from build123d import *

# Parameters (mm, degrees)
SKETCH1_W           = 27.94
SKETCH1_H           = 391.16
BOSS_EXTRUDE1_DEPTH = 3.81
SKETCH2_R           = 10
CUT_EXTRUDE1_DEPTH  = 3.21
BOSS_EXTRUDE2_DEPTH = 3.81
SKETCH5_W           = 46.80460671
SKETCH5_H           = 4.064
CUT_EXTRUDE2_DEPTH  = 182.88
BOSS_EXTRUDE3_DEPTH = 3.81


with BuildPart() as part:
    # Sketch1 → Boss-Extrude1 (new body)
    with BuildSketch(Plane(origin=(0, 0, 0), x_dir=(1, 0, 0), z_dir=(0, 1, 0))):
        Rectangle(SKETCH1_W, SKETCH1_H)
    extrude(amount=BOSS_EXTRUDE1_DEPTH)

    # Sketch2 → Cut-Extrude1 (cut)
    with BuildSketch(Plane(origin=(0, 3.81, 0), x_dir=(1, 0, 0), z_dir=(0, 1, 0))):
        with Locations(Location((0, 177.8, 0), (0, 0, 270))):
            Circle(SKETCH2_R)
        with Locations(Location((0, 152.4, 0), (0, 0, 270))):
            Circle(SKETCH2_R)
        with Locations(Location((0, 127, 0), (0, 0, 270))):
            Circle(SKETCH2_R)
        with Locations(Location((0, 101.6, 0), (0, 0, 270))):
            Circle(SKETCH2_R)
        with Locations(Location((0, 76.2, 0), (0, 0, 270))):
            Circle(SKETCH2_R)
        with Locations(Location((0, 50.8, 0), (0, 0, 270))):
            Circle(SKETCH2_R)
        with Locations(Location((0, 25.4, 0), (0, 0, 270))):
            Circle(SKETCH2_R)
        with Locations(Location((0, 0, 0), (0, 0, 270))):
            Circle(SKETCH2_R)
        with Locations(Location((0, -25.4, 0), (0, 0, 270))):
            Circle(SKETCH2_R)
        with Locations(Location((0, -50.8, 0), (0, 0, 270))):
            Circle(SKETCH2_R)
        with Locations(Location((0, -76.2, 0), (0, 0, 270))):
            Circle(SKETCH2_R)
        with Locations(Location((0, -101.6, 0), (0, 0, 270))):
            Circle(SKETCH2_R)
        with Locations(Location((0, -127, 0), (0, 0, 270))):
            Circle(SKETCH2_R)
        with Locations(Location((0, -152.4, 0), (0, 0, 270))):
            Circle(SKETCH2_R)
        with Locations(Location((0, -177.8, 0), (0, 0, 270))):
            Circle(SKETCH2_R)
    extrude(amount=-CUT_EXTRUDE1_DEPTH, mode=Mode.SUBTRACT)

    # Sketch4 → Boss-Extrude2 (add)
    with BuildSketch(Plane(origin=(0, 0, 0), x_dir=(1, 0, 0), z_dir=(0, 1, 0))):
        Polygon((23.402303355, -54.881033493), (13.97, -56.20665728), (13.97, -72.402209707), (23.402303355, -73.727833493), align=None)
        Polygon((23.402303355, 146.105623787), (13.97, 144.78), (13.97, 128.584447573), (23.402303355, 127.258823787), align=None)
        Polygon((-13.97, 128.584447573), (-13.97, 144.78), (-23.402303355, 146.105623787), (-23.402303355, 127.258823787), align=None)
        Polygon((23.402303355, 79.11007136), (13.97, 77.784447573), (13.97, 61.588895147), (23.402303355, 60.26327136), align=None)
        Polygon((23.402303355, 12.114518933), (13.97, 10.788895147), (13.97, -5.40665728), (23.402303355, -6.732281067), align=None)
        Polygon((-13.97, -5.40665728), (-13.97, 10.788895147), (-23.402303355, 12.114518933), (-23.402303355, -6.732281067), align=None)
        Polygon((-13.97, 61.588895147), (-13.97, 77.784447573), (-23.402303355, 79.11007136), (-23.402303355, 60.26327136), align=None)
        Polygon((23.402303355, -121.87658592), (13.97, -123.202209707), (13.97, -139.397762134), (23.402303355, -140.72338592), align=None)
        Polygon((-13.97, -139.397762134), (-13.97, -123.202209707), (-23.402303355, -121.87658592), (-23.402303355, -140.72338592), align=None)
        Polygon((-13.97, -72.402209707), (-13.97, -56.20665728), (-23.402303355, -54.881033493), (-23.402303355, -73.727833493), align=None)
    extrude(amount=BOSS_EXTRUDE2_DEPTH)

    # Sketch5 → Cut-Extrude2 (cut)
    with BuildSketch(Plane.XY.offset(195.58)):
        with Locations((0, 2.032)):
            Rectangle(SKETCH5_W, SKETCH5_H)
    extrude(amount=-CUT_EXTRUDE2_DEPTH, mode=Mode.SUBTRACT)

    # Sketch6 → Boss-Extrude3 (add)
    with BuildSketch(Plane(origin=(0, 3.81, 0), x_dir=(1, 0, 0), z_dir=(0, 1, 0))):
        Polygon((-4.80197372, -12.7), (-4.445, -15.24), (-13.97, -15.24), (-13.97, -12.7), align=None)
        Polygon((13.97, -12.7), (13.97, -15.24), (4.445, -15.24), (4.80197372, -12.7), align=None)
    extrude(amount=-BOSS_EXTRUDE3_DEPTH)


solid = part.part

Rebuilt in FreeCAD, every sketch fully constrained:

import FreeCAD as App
import Part
import Sketcher

V = App.Vector
Q = App.Units.Quantity


def add_polygon(sketch, points):
    """Adds a closed chain of lines whose ends are joined by coincident constraints."""
    first, n = sketch.GeometryCount, len(points)
    for a, b in zip(points, points[1:] + points[:1]):
        sketch.addGeometry(Part.LineSegment(App.Vector(*a, 0), App.Vector(*b, 0)), False)
    for i in range(n):
        sketch.addConstraint(Sketcher.Constraint("Coincident", first + i, 2, first + (i + 1) % n, 1))

doc = App.newDocument("Part")
body = doc.addObject("PartDesign::Body", "Body")

# Sketch on XZ plane
sketch1 = body.newObject("Sketcher::SketchObject", "Sketch")
sketch1.AttachmentSupport = (doc.getObject("XZ_Plane"), [""])
sketch1.MapMode = "FlatFace"
add_polygon(sketch1, [(-14, -196), (-14, 196), (14, 196), (14, -196)])  # lines 0-3
sketch1.addConstraint([
    Sketcher.Constraint("Vertical", 0),
    Sketcher.Constraint("Horizontal", 1),
    Sketcher.Constraint("Vertical", 2),
    Sketcher.Constraint("Horizontal", 3),
    Sketcher.Constraint("Symmetric", 0, 2, 2, 2, -1, 1),
    Sketcher.Constraint("DistanceX", 1, 1, 1, 2, Q("1.1 in")),
    Sketcher.Constraint("DistanceY", 0, 1, 0, 2, Q("15.4 in")),
])
pad1 = body.newObject("PartDesign::Pad", "Pad")
pad1.Profile = sketch1
pad1.Length = Q("0.15 in")
pad1.Reversed = True

# Sketch on XZ plane
sketch2 = body.newObject("Sketcher::SketchObject", "Sketch001")
sketch2.AttachmentSupport = (doc.getObject("XZ_Plane"), [""])
sketch2.MapMode = "FlatFace"
sketch2.AttachmentOffset = App.Placement(V(0, 0, -0.15 * 25.4), App.Rotation())
sketch2.addGeometry([
    Part.Circle(V(0, -178, 0), V(0, 0, 1), 10),  # 0
    Part.Circle(V(0, -152, 0), V(0, 0, 1), 10),  # 1
    Part.Circle(V(0, -127, 0), V(0, 0, 1), 10),  # 2
    Part.Circle(V(0, -102, 0), V(0, 0, 1), 10),  # 3
    Part.Circle(V(0, -76, 0), V(0, 0, 1), 10),  # 4
    Part.Circle(V(0, -51, 0), V(0, 0, 1), 10),  # 5
    Part.Circle(V(0, -25, 0), V(0, 0, 1), 10),  # 6
    Part.Circle(V(0, 0, 0), V(0, 0, 1), 10),  # 7
    Part.Circle(V(0, 25, 0), V(0, 0, 1), 10),  # 8
    Part.Circle(V(0, 51, 0), V(0, 0, 1), 10),  # 9
    Part.Circle(V(0, 76, 0), V(0, 0, 1), 10),  # 10
    Part.Circle(V(0, 102, 0), V(0, 0, 1), 10),  # 11
    Part.Circle(V(0, 127, 0), V(0, 0, 1), 10),  # 12
    Part.Circle(V(0, 152, 0), V(0, 0, 1), 10),  # 13
    Part.Circle(V(0, 178, 0), V(0, 0, 1), 10),  # 14
], False)
sketch2.addConstraint([
    Sketcher.Constraint("Coincident", 7, 3, -1, 1),
    Sketcher.Constraint("Equal", 0, 1),
    Sketcher.Constraint("Equal", 1, 2),
    Sketcher.Constraint("Equal", 2, 3),
    Sketcher.Constraint("Equal", 3, 4),
    Sketcher.Constraint("Equal", 4, 5),
    Sketcher.Constraint("Equal", 5, 6),
    Sketcher.Constraint("Equal", 6, 7),
    Sketcher.Constraint("Equal", 7, 8),
    Sketcher.Constraint("Equal", 8, 9),
    Sketcher.Constraint("Equal", 9, 10),
    Sketcher.Constraint("Equal", 10, 11),
    Sketcher.Constraint("Equal", 11, 12),
    Sketcher.Constraint("Equal", 12, 13),
    Sketcher.Constraint("Equal", 13, 14),
    Sketcher.Constraint("Symmetric", 6, 3, 8, 3, -1, 1),
    Sketcher.Constraint("Symmetric", 5, 3, 9, 3, -1, 1),
    Sketcher.Constraint("Symmetric", 4, 3, 10, 3, -1, 1),
    Sketcher.Constraint("Symmetric", 3, 3, 11, 3, -1, 1),
    Sketcher.Constraint("Symmetric", 2, 3, 12, 3, -1, 1),
    Sketcher.Constraint("Symmetric", 1, 3, 13, 3, -1, 1),
    Sketcher.Constraint("Symmetric", 0, 3, 14, 3, -1, 1),
    Sketcher.Constraint("PointOnObject", 0, 3, -2),
    Sketcher.Constraint("PointOnObject", 1, 3, -2),
    Sketcher.Constraint("PointOnObject", 2, 3, -2),
    Sketcher.Constraint("PointOnObject", 3, 3, -2),
    Sketcher.Constraint("PointOnObject", 4, 3, -2),
    Sketcher.Constraint("PointOnObject", 5, 3, -2),
    Sketcher.Constraint("PointOnObject", 6, 3, -2),
    Sketcher.Constraint("DistanceY", 0, 3, -1, 1, Q("7 in")),
    Sketcher.Constraint("DistanceY", 1, 3, -1, 1, Q("6 in")),
    Sketcher.Constraint("DistanceY", 2, 3, -1, 1, Q("5 in")),
    Sketcher.Constraint("DistanceY", 3, 3, -1, 1, Q("4 in")),
    Sketcher.Constraint("DistanceY", 4, 3, -1, 1, Q("3 in")),
    Sketcher.Constraint("DistanceY", 5, 3, -1, 1, Q("2 in")),
    Sketcher.Constraint("DistanceY", 6, 3, -1, 1, Q("1 in")),
    Sketcher.Constraint("Diameter", 0, 20.0),
])
pocket1 = body.newObject("PartDesign::Pocket", "Pocket")
pocket1.Profile = sketch2
pocket1.Length = 3.21
pocket1.Reversed = True

# Sketch on XZ plane
sketch3 = body.newObject("Sketcher::SketchObject", "Sketch002")
sketch3.AttachmentSupport = (doc.getObject("XZ_Plane"), [""])
sketch3.MapMode = "FlatFace"
add_polygon(sketch3, [(23, 55), (14, 56), (14, 72), (23, 74)])  # lines 0-3
add_polygon(sketch3, [(23, -146), (14, -145), (14, -129), (23, -127)])  # lines 4-7
add_polygon(sketch3, [(-14, -129), (-14, -145), (-23, -146), (-23, -127)])  # lines 8-11
add_polygon(sketch3, [(23, -79), (14, -78), (14, -62), (23, -60)])  # lines 12-15
add_polygon(sketch3, [(23, -12), (14, -11), (14, 5), (23, 7)])  # lines 16-19
add_polygon(sketch3, [(-14, 5), (-14, -11), (-23, -12), (-23, 7)])  # lines 20-23
add_polygon(sketch3, [(-14, -62), (-14, -78), (-23, -79), (-23, -60)])  # lines 24-27
add_polygon(sketch3, [(23, 122), (14, 123), (14, 139), (23, 141)])  # lines 28-31
add_polygon(sketch3, [(-14, 139), (-14, 123), (-23, 122), (-23, 141)])  # lines 32-35
add_polygon(sketch3, [(-14, 72), (-14, 56), (-23, 55), (-23, 74)])  # lines 36-39
sketch3.addConstraint([
    Sketcher.Constraint("Vertical", 1),
    Sketcher.Constraint("Vertical", 3),
    Sketcher.Constraint("Vertical", 5),
    Sketcher.Constraint("Vertical", 7),
    Sketcher.Constraint("Vertical", 8),
    Sketcher.Constraint("Vertical", 10),
    Sketcher.Constraint("Vertical", 13),
    Sketcher.Constraint("Vertical", 15),
    Sketcher.Constraint("Vertical", 17),
    Sketcher.Constraint("Vertical", 19),
    Sketcher.Constraint("Vertical", 20),
    Sketcher.Constraint("Vertical", 22),
    Sketcher.Constraint("Vertical", 24),
    Sketcher.Constraint("Vertical", 26),
    Sketcher.Constraint("Vertical", 29),
    Sketcher.Constraint("Vertical", 31),
    Sketcher.Constraint("Vertical", 32),
    Sketcher.Constraint("Vertical", 34),
    Sketcher.Constraint("Vertical", 36),
    Sketcher.Constraint("Vertical", 38),
    Sketcher.Constraint("Symmetric", 4, 2, 8, 2, -2),
    Sketcher.Constraint("Symmetric", 7, 2, 9, 2, -2),
    Sketcher.Constraint("Symmetric", 16, 2, 20, 2, -2),
    Sketcher.Constraint("Symmetric", 19, 2, 21, 2, -2),
    Sketcher.Constraint("Symmetric", 12, 2, 24, 2, -2),
    Sketcher.Constraint("Symmetric", 15, 2, 25, 2, -2),
    Sketcher.Constraint("Symmetric", 28, 2, 32, 2, -2),
    Sketcher.Constraint("Symmetric", 31, 2, 33, 2, -2),
    Sketcher.Constraint("Symmetric", 0, 2, 36, 2, -2),
    Sketcher.Constraint("Symmetric", 3, 2, 37, 2, -2),
    Sketcher.Constraint("Parallel", 0, 4),
    Sketcher.Constraint("Parallel", 2, 6),
    Sketcher.Constraint("Parallel", 6, 9),
    Sketcher.Constraint("Parallel", 4, 11),
    Sketcher.Constraint("Parallel", 11, 12),
    Sketcher.Constraint("Parallel", 9, 14),
    Sketcher.Constraint("Parallel", 12, 16),
    Sketcher.Constraint("Parallel", 14, 18),
    Sketcher.Constraint("Parallel", 16, 23),
    Sketcher.Constraint("Parallel", 23, 27),
    Sketcher.Constraint("Parallel", 27, 28),
    Sketcher.Constraint("Parallel", 25, 30),
    Sketcher.Constraint("Parallel", 28, 35),
    Sketcher.Constraint("Parallel", 35, 39),
    Sketcher.Constraint("Horizontal", 6, 2, 10, 2),
    Sketcher.Constraint("Horizontal", 18, 2, 22, 2),
    Sketcher.Constraint("Horizontal", 14, 2, 26, 2),
    Sketcher.Constraint("Horizontal", 30, 2, 34, 2),
    Sketcher.Constraint("Horizontal", 2, 2, 38, 2),
    Sketcher.Constraint("Vertical", 1, 2, 4, 2),
    Sketcher.Constraint("Vertical", 3, 2, 6, 2),
    Sketcher.Constraint("Vertical", 5, 2, 12, 2),
    Sketcher.Constraint("Vertical", 7, 2, 14, 2),
    Sketcher.Constraint("Vertical", 13, 2, 16, 2),
    Sketcher.Constraint("Vertical", 15, 2, 18, 2),
    Sketcher.Constraint("Vertical", 17, 2, 28, 2),
    Sketcher.Constraint("Vertical", 19, 2, 30, 2),
    Sketcher.Constraint("Equal", 1, 5),
    Sketcher.Constraint("Equal", 8, 13),
    Sketcher.Constraint("Equal", 13, 17),
    Sketcher.Constraint("Equal", 24, 29),
    Sketcher.Constraint("Angle", 0, Q("172 deg")),
    Sketcher.Constraint("DistanceY", 5, 2, 12, 2, Q("2 in")),
    Sketcher.Constraint("DistanceY", 13, 2, 16, 2, Q("2 in")),
    Sketcher.Constraint("DistanceY", 17, 2, 0, 2, Q("2 in")),
    Sketcher.Constraint("DistanceY", 1, 2, 28, 2, Q("2 in")),
    Sketcher.Constraint("DistanceY", 4, 2, -1, 1, Q("5.7 in")),
    Sketcher.Constraint("DistanceX", 8, 2, 4, 2, Q("1.1 in")),
    Sketcher.Constraint("DistanceY", 3, 2, 3, 1, Q("0.742 in")),
    Sketcher.Constraint("Distance", 0, Q("0.375 in")),
])
pad2 = body.newObject("PartDesign::Pad", "Pad001")
pad2.Profile = sketch3
pad2.Length = Q("0.15 in")
pad2.Reversed = True

# Sketch on XY plane
sketch4 = body.newObject("Sketcher::SketchObject", "Sketch003")
sketch4.AttachmentSupport = (doc.getObject("XY_Plane"), [""])
sketch4.MapMode = "FlatFace"
sketch4.AttachmentOffset = App.Placement(V(0, 0, 7.7 * 25.4), App.Rotation())
add_polygon(sketch4, [(-23.4, 4.1), (-23.4, 0), (23.4, 0), (23.4, 4.1)])  # lines 0-3
sketch4.addConstraint([
    Sketcher.Constraint("Vertical", 0),
    Sketcher.Constraint("Horizontal", 1),
    Sketcher.Constraint("Vertical", 2),
    Sketcher.Constraint("Horizontal", 3),
    Sketcher.Constraint("Symmetric", 0, 2, 1, 2, -1, 1),
    Sketcher.Constraint("DistanceY", 0, 2, 0, 1, Q("0.16 in")),
    Sketcher.Constraint("DistanceX", 1, 1, 1, 2, 46.804607),
])
pocket2 = body.newObject("PartDesign::Pocket", "Pocket001")
pocket2.Profile = sketch4
pocket2.Length = Q("7.2 in")

# Sketch on XZ plane
sketch5 = body.newObject("Sketcher::SketchObject", "Sketch004")
sketch5.AttachmentSupport = (doc.getObject("XZ_Plane"), [""])
sketch5.MapMode = "FlatFace"
sketch5.AttachmentOffset = App.Placement(V(0, 0, -0.15 * 25.4), App.Rotation())
add_polygon(sketch5, [(-4.4, 15.2), (-4.8, 12.7), (-14, 12.7), (-14, 15.2)])  # lines 0-3
add_polygon(sketch5, [(14, 15.2), (14, 12.7), (4.8, 12.7), (4.4, 15.2)])  # lines 4-7
sketch5.addConstraint([
    Sketcher.Constraint("Horizontal", 1),
    Sketcher.Constraint("Vertical", 2),
    Sketcher.Constraint("Horizontal", 3),
    Sketcher.Constraint("Vertical", 4),
    Sketcher.Constraint("Horizontal", 5),
    Sketcher.Constraint("Horizontal", 7),
    Sketcher.Constraint("Symmetric", 1, 2, 4, 2, -2),
    Sketcher.Constraint("Symmetric", 3, 2, 6, 2, -2),
    Sketcher.Constraint("Equal", 1, 5),
    Sketcher.Constraint("DistanceY", 2, 1, 2, 2, Q("0.1 in")),
    Sketcher.Constraint("Angle", 0, Q("-98 deg")),
    Sketcher.Constraint("DistanceY", -1, 1, 0, 2, Q("0.5 in")),
    Sketcher.Constraint("DistanceX", 1, 2, 4, 2, Q("1.1 in")),
    Sketcher.Constraint("DistanceX", 3, 1, 3, 2, Q("0.375 in")),
])
pad3 = body.newObject("PartDesign::Pad", "Pad002")
pad3.Profile = sketch5
pad3.Length = Q("0.15 in")

doc.recompute()
